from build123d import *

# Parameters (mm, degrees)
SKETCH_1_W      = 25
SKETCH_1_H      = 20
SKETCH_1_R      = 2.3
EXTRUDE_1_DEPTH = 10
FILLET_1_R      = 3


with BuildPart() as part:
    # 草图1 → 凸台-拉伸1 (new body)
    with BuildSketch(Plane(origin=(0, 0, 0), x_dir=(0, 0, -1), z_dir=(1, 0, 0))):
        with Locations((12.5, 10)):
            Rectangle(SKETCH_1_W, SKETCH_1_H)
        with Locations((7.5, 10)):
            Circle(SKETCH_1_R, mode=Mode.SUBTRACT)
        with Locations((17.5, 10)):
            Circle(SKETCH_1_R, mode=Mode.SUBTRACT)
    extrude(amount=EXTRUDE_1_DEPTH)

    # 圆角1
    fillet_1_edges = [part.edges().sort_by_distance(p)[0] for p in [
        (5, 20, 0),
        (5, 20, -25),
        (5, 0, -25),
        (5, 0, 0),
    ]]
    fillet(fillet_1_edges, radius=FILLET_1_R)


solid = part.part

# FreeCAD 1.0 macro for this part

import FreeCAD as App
import Part
import Sketcher
from FreeCAD import Vector


def edges_at(feature, points):
    """Names of the edges that pass closest to the given points."""
    edges = feature.Shape.Edges
    near = lambda p: min(range(len(edges)), key=lambda i: edges[i].distToShape(Part.Vertex(*p))[0])
    return sorted({f"Edge{near(p) + 1}" for p in points})

doc = App.newDocument("Part")
params = doc.addObject("Spreadsheet::Sheet", "Params")
for row, (alias, value) in enumerate([
    ("sketch1_diameter", "4.6 mm"),
    ("sketch1_width", "20 mm"),
    ("sketch1_height", "25 mm"),
    ("pad1_length", "10 mm"),
    ("fillet_radius", "3 mm"),
], start=1):
    params.set(f"A{row}", alias)
    params.set(f"B{row}", "=" + value)
    params.setAlias(f"B{row}", alias)

body = doc.addObject("PartDesign::Body", "Body")

sketch1 = body.newObject("Sketcher::SketchObject", "Sketch")
sketch1.AttachmentSupport = (doc.getObject("YZ_Plane"), [""])
sketch1.MapMode = "FlatFace"
sketch1.addGeometry(Part.LineSegment(Vector(20, 0, 0), Vector(0, 0, 0)), False)
sketch1.addGeometry(Part.LineSegment(Vector(0, 0, 0), Vector(0, -25, 0)), False)
sketch1.addGeometry(Part.LineSegment(Vector(0, -25, 0), Vector(20, -25, 0)), False)
sketch1.addGeometry(Part.LineSegment(Vector(20, -25, 0), Vector(20, 0, 0)), False)
sketch1.addGeometry(Part.Circle(Vector(10, -7.5, 0), Vector(0, 0, 1), 2.3), False)
sketch1.addGeometry(Part.Circle(Vector(10, -17.5, 0), Vector(0, 0, 1), 2.3), False)
sketch1.addConstraint(Sketcher.Constraint("Coincident", 0, 2, 1, 1))
sketch1.addConstraint(Sketcher.Constraint("Coincident", 1, 2, 2, 1))
sketch1.addConstraint(Sketcher.Constraint("Coincident", 2, 2, 3, 1))
sketch1.addConstraint(Sketcher.Constraint("Coincident", 3, 2, 0, 1))
sketch1.addConstraint(Sketcher.Constraint("Horizontal", 0))
sketch1.addConstraint(Sketcher.Constraint("Vertical", 1))
sketch1.addConstraint(Sketcher.Constraint("Horizontal", 2))
sketch1.addConstraint(Sketcher.Constraint("Vertical", 3))
sketch1.addConstraint(Sketcher.Constraint("Coincident", 0, 2, -1, 1))
sketch1.addConstraint(Sketcher.Constraint("Equal", 4, 5))
sketch1.addConstraint(Sketcher.Constraint("Vertical", 4, 3, 5, 3))
sketch1.addConstraint(Sketcher.Constraint("Diameter", 4, 4.6))
sketch1.addConstraint(Sketcher.Constraint("DistanceX", 0, 2, 0, 1, 20.0))
sketch1.addConstraint(Sketcher.Constraint("DistanceY", 1, 2, 1, 1, 25.0))
sketch1.addConstraint(Sketcher.Constraint("DistanceX", -1, 1, 4, 3, 10.0))
sketch1.addConstraint(Sketcher.Constraint("DistanceY", 5, 3, 4, 3, 10.0))
sketch1.addConstraint(Sketcher.Constraint("DistanceY", 4, 3, -1, 1, 7.5))
sketch1.setExpression("Constraints[11]", "Params.sketch1_diameter")
sketch1.setExpression("Constraints[12]", "Params.sketch1_width")
sketch1.setExpression("Constraints[13]", "Params.sketch1_height")
pad1 = body.newObject("PartDesign::Pad", "Pad")
pad1.Profile = sketch1
pad1.setExpression("Length", "Params.pad1_length")
doc.recompute()

fillet = body.newObject("PartDesign::Fillet", "Fillet")
fillet.Base = (pad1, edges_at(pad1, [
    (5, 20, 0),
    (5, 20, -25),
    (5, 0, -25),
    (5, 0, 0),
]))
fillet.setExpression("Radius", "Params.fillet_radius")

doc.recompute()
